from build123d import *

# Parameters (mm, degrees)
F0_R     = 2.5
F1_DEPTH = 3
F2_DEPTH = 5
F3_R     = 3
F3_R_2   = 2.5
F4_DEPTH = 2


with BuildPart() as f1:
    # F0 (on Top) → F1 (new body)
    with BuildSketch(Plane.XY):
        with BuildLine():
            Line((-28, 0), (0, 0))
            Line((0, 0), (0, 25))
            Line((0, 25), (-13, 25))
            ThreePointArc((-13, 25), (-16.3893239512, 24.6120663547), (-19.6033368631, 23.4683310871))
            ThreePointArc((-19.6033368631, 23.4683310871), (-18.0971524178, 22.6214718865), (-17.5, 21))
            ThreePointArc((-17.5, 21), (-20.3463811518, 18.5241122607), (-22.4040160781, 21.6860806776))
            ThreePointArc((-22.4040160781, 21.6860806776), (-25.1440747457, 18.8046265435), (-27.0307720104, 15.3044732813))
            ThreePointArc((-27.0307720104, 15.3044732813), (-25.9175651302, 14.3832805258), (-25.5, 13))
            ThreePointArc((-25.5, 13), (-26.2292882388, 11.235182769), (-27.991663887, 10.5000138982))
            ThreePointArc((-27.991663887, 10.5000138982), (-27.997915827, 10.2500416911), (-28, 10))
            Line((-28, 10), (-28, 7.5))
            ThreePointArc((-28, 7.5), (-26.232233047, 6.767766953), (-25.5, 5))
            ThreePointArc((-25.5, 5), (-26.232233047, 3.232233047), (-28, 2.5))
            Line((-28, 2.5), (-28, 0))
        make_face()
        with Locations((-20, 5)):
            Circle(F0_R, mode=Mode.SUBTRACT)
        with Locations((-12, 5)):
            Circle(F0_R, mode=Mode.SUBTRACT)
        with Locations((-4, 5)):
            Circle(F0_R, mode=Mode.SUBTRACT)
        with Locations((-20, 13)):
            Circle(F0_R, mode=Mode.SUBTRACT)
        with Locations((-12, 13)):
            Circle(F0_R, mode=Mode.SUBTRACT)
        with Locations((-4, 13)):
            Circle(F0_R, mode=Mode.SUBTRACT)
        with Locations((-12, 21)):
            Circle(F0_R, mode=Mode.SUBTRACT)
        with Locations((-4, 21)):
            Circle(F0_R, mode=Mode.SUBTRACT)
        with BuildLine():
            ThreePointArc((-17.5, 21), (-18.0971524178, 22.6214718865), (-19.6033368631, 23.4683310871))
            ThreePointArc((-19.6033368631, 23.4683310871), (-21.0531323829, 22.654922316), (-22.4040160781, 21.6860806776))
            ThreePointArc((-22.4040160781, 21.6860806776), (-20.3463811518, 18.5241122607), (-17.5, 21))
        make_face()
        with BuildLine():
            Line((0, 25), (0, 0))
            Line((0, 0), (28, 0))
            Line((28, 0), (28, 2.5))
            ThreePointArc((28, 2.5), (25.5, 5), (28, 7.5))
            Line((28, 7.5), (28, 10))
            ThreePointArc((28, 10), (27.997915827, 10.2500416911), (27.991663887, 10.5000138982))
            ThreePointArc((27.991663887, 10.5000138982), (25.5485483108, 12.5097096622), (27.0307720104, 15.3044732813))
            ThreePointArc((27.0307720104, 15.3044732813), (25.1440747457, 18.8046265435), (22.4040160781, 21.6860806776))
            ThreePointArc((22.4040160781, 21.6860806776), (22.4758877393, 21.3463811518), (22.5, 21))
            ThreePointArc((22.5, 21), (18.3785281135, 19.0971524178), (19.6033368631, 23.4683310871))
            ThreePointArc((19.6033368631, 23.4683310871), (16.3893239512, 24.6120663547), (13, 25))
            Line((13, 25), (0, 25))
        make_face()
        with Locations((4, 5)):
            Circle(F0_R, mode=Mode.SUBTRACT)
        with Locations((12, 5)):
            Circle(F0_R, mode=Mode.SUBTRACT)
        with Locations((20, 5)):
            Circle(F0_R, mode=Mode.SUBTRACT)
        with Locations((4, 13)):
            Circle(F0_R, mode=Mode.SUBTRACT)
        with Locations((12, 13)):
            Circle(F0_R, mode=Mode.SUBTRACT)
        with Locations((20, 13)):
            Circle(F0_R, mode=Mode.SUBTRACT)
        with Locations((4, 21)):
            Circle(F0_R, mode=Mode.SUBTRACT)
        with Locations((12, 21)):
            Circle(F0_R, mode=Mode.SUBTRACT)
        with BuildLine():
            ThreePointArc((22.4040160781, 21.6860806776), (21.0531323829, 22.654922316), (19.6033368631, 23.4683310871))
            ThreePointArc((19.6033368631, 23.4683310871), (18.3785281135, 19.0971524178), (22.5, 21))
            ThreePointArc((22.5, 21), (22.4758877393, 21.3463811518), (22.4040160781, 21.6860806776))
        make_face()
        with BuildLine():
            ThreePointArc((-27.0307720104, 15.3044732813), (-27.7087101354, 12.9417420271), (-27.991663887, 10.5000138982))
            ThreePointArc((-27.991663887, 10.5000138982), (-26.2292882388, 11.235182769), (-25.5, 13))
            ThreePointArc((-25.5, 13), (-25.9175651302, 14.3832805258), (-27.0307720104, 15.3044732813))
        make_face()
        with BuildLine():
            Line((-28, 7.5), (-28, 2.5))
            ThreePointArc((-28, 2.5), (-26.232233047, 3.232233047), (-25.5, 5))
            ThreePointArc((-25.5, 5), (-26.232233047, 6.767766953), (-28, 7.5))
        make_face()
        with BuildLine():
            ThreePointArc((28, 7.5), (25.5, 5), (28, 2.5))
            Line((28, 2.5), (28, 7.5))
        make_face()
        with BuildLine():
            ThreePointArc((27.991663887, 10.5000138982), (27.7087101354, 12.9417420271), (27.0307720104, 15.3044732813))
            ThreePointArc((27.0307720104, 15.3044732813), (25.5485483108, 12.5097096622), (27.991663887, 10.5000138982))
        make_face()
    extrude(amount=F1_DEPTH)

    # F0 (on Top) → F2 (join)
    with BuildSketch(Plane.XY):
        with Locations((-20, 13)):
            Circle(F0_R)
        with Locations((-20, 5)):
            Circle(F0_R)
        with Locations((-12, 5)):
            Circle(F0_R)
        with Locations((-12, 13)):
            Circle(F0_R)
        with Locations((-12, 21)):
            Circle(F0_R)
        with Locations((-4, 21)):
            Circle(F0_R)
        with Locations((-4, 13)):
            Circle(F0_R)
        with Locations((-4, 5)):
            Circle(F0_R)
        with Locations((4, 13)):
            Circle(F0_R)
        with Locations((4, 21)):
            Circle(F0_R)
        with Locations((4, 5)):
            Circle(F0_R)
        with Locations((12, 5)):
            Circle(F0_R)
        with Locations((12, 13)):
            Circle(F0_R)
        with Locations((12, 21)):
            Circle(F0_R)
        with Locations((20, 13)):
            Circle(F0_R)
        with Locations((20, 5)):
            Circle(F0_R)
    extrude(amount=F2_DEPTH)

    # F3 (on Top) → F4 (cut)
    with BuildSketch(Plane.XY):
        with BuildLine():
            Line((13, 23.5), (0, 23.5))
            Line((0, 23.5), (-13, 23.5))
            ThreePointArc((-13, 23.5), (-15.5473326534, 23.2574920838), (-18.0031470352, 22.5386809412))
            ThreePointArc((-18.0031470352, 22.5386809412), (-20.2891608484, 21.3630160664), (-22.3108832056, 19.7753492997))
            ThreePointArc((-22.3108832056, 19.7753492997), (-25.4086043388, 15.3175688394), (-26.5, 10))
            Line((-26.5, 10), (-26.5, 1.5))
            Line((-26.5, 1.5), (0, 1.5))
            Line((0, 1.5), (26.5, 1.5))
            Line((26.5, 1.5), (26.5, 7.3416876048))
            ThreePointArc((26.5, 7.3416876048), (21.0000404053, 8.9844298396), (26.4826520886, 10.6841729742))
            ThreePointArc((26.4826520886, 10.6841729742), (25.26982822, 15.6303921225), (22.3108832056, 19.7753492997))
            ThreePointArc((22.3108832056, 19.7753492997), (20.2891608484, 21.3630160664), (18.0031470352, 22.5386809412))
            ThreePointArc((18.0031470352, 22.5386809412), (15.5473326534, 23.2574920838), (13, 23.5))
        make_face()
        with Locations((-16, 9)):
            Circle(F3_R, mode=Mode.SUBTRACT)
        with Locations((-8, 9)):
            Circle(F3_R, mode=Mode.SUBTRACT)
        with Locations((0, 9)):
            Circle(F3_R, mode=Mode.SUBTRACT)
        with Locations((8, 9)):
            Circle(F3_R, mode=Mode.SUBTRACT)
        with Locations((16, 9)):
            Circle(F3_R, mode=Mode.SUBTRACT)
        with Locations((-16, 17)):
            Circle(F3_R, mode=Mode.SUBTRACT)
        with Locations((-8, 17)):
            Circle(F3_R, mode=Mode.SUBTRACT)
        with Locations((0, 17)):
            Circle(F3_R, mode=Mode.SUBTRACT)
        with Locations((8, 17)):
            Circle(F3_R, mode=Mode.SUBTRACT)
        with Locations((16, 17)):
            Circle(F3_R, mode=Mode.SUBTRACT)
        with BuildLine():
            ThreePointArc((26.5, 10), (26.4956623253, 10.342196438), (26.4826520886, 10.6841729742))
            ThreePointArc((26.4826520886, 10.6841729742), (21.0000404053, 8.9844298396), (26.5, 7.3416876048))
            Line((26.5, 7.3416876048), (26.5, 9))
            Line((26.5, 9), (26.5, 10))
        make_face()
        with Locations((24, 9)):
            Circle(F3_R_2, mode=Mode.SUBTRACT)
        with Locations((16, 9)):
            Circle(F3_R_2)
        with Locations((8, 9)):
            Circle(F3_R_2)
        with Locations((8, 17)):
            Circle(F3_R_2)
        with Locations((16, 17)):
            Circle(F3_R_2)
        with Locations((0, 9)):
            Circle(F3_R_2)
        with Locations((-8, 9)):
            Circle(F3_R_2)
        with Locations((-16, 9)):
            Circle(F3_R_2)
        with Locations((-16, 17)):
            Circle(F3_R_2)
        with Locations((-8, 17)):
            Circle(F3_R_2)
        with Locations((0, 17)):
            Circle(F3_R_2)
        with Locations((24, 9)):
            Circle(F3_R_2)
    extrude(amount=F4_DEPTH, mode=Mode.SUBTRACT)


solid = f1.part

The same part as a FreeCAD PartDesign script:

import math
import FreeCAD as App
import Part
import Sketcher
from FreeCAD import Vector

doc = App.newDocument("Part")
body = doc.addObject("PartDesign::Body", "Body")

# Sketch on XY plane
sketch1 = body.newObject("Sketcher::SketchObject", "Sketch")
sketch1.AttachmentSupport = (doc.getObject("XY_Plane"), [""])
sketch1.MapMode = "FlatFace"
sketch1.addGeometry([
    Part.LineSegment(Vector(-28, 0, 0), Vector(28, 0, 0)),  # 0
    Part.LineSegment(Vector(28, 0, 0), Vector(28, 10, 0)),  # 1
    Part.ArcOfCircle(Part.Circle(Vector(13, 10, 0), Vector(0, 0, 1), 15), math.radians(0), math.radians(1.91)),  # 2
    Part.ArcOfCircle(Part.Circle(Vector(13, 10, 0), Vector(0, 0, 1), 15), math.radians(1.91), math.radians(20.71)),  # 3
    Part.ArcOfCircle(Part.Circle(Vector(13, 10, 0), Vector(0, 0, 1), 15), math.radians(21), math.radians(64)),  # 4
    Part.ArcOfCircle(Part.Circle(Vector(13, 10, 0), Vector(0, 0, 1), 15), math.radians(64), math.radians(90)),  # 5
    Part.LineSegment(Vector(13, 25, 0), Vector(-13, 25, 0)),  # 6
    Part.ArcOfCircle(Part.Circle(Vector(-13, 10, 0), Vector(0, 0, 1), 15), math.radians(90), math.radians(116)),  # 7
    Part.ArcOfCircle(Part.Circle(Vector(-13, 10, 0), Vector(0, 0, 1), 15), math.radians(116), math.radians(159)),  # 8
    Part.ArcOfCircle(Part.Circle(Vector(-13, 10, 0), Vector(0, 0, 1), 15), math.radians(159.29), math.radians(178.09)),  # 9
    Part.ArcOfCircle(Part.Circle(Vector(-13, 10, 0), Vector(0, 0, 1), 15), math.radians(178.09), math.radians(180)),  # 10
    Part.LineSegment(Vector(-28, 10, 0), Vector(-28, 0, 0)),  # 11
    Part.Circle(Vector(-20, 5, 0), Vector(0, 0, 1), 2.5),  # 12
    Part.Circle(Vector(-12, 5, 0), Vector(0, 0, 1), 2.5),  # 13
    Part.Circle(Vector(-4, 5, 0), Vector(0, 0, 1), 2.5),  # 14
    Part.Circle(Vector(4, 5, 0), Vector(0, 0, 1), 2.5),  # 15
    Part.Circle(Vector(12, 5, 0), Vector(0, 0, 1), 2.5),  # 16
    Part.Circle(Vector(20, 5, 0), Vector(0, 0, 1), 2.5),  # 17
    Part.Circle(Vector(-20, 13, 0), Vector(0, 0, 1), 2.5),  # 18
    Part.Circle(Vector(-12, 13, 0), Vector(0, 0, 1), 2.5),  # 19
    Part.Circle(Vector(-4, 13, 0), Vector(0, 0, 1), 2.5),  # 20
    Part.Circle(Vector(-12, 21, 0), Vector(0, 0, 1), 2.5),  # 21
    Part.Circle(Vector(-4, 21, 0), Vector(0, 0, 1), 2.5),  # 22
    Part.Circle(Vector(4, 13, 0), Vector(0, 0, 1), 2.5),  # 23
    Part.Circle(Vector(12, 13, 0), Vector(0, 0, 1), 2.5),  # 24
    Part.Circle(Vector(20, 13, 0), Vector(0, 0, 1), 2.5),  # 25
    Part.Circle(Vector(4, 21, 0), Vector(0, 0, 1), 2.5),  # 26
    Part.Circle(Vector(12, 21, 0), Vector(0, 0, 1), 2.5),  # 27
], False)
sketch1.addConstraint([
    Sketcher.Constraint("Coincident", 0, 2, 1, 1),
    Sketcher.Constraint("Tangent", 1, 2, 2, 1),
    Sketcher.Constraint("Tangent", 2, 2, 3, 1),
    Sketcher.Constraint("Tangent", 3, 2, 4, 1),
    Sketcher.Constraint("Tangent", 4, 2, 5, 1),
    Sketcher.Constraint("Tangent", 5, 2, 6, 1),
    Sketcher.Constraint("Tangent", 6, 2, 7, 1),
    Sketcher.Constraint("Tangent", 7, 2, 8, 1),
    Sketcher.Constraint("Tangent", 8, 2, 9, 1),
    Sketcher.Constraint("Tangent", 9, 2, 10, 1),
    Sketcher.Constraint("Tangent", 10, 2, 11, 1),
    Sketcher.Constraint("Coincident", 11, 2, 0, 1),
    Sketcher.Constraint("Horizontal", 0),
    Sketcher.Constraint("Vertical", 1),
    Sketcher.Constraint("Horizontal", 6),
    Sketcher.Constraint("Vertical", 11),
    Sketcher.Constraint("Coincident", 4, 3, 2, 3),
    Sketcher.Constraint("Coincident", 9, 3, 7, 3),
    Sketcher.Constraint("Equal", 4, 5),
    Sketcher.Constraint("Equal", 5, 7),
    Sketcher.Constraint("Equal", 9, 10),
    Sketcher.Constraint("Equal", 12, 13),
    Sketcher.Constraint("Equal", 13, 14),
    Sketcher.Constraint("Equal", 14, 15),
    Sketcher.Constraint("Equal", 15, 16),
    Sketcher.Constraint("Equal", 16, 17),
    Sketcher.Constraint("Equal", 17, 18),
    Sketcher.Constraint("Equal", 18, 19),
    Sketcher.Constraint("Equal", 19, 20),
    Sketcher.Constraint("Equal", 20, 21),
    Sketcher.Constraint("Equal", 21, 22),
    Sketcher.Constraint("Equal", 22, 23),
    Sketcher.Constraint("Equal", 23, 24),
    Sketcher.Constraint("Equal", 24, 25),
    Sketcher.Constraint("Equal", 25, 26),
    Sketcher.Constraint("Equal", 26, 27),
    Sketcher.Constraint("Symmetric", 0, 2, 11, 2, -1, 1),
    Sketcher.Constraint("Symmetric", 14, 3, 15, 3, -2),
    Sketcher.Constraint("Symmetric", 13, 3, 16, 3, -2),
    Sketcher.Constraint("Symmetric", 12, 3, 17, 3, -2),
    Sketcher.Constraint("Symmetric", 20, 3, 23, 3, -2),
    Sketcher.Constraint("Symmetric", 19, 3, 24, 3, -2),
    Sketcher.Constraint("Symmetric", 18, 3, 25, 3, -2),
    Sketcher.Constraint("Symmetric", 22, 3, 26, 3, -2),
    Sketcher.Constraint("Symmetric", 21, 3, 27, 3, -2),
    Sketcher.Constraint("Horizontal", 12, 3, 13, 3),
    Sketcher.Constraint("Horizontal", 13, 3, 14, 3),
    Sketcher.Constraint("Horizontal", 18, 3, 19, 3),
    Sketcher.Constraint("Horizontal", 19, 3, 20, 3),
    Sketcher.Constraint("Horizontal", 21, 3, 22, 3),
    Sketcher.Constraint("Horizontal", 4, 2, 7, 2),
    Sketcher.Constraint("Horizontal", 3, 2, 8, 2),
    Sketcher.Constraint("Horizontal", 2, 2, 9, 2),
    Sketcher.Constraint("Vertical", 12, 3, 18, 3),
    Sketcher.Constraint("Vertical", 13, 3, 19, 3),
    Sketcher.Constraint("Vertical", 14, 3, 20, 3),
    Sketcher.Constraint("Vertical", 19, 3, 21, 3),
    Sketcher.Constraint("Vertical", 20, 3, 22, 3),
    Sketcher.Constraint("Diameter", 12, 5.0),
    Sketcher.Constraint("Radius", 2, 15.0),
    Sketcher.Constraint("DistanceX", 0, 1, 0, 2, 56.0),
    Sketcher.Constraint("DistanceY", 1, 1, 1, 2, 10.0),
    Sketcher.Constraint("DistanceX", 12, 3, -1, 1, 20.0),
    Sketcher.Constraint("DistanceY", -1, 1, 12, 3, 5.0),
    Sketcher.Constraint("DistanceX", 13, 3, -1, 1, 12.0),
    Sketcher.Constraint("DistanceX", 14, 3, -1, 1, 4.0),
    Sketcher.Constraint("DistanceY", -1, 1, 18, 3, 13.0),
    Sketcher.Constraint("DistanceY", -1, 1, 21, 3, 21.0),
    Sketcher.Constraint("DistanceY", -1, 1, 4, 2, 23.468331),
    Sketcher.Constraint("DistanceX", 3, 2, 2, 2, 0.960892),
    Sketcher.Constraint("DistanceY", 2, 2, 3, 2, 4.804459),
])
pad1 = body.newObject("PartDesign::Pad", "Pad")
pad1.Profile = sketch1
pad1.Length = 3

# Sketch on XY plane
sketch2 = body.newObject("Sketcher::SketchObject", "Sketch001")
sketch2.AttachmentSupport = (doc.getObject("XY_Plane"), [""])
sketch2.MapMode = "FlatFace"
sketch2.addGeometry([
    Part.Circle(Vector(-20, 13, 0), Vector(0, 0, 1), 2.5),  # 0
    Part.Circle(Vector(-20, 5, 0), Vector(0, 0, 1), 2.5),  # 1
    Part.Circle(Vector(-12, 5, 0), Vector(0, 0, 1), 2.5),  # 2
    Part.Circle(Vector(-12, 13, 0), Vector(0, 0, 1), 2.5),  # 3
    Part.Circle(Vector(-12, 21, 0), Vector(0, 0, 1), 2.5),  # 4
    Part.Circle(Vector(-4, 21, 0), Vector(0, 0, 1), 2.5),  # 5
    Part.Circle(Vector(-4, 13, 0), Vector(0, 0, 1), 2.5),  # 6
    Part.Circle(Vector(-4, 5, 0), Vector(0, 0, 1), 2.5),  # 7
    Part.Circle(Vector(4, 13, 0), Vector(0, 0, 1), 2.5),  # 8
    Part.Circle(Vector(4, 21, 0), Vector(0, 0, 1), 2.5),  # 9
    Part.Circle(Vector(4, 5, 0), Vector(0, 0, 1), 2.5),  # 10
    Part.Circle(Vector(12, 5, 0), Vector(0, 0, 1), 2.5),  # 11
    Part.Circle(Vector(12, 13, 0), Vector(0, 0, 1), 2.5),  # 12
    Part.Circle(Vector(12, 21, 0), Vector(0, 0, 1), 2.5),  # 13
    Part.Circle(Vector(20, 13, 0), Vector(0, 0, 1), 2.5),  # 14
    Part.Circle(Vector(20, 5, 0), Vector(0, 0, 1), 2.5),  # 15
], False)
sketch2.addConstraint([
    Sketcher.Constraint("Equal", 0, 1),
    Sketcher.Constraint("Equal", 1, 2),
    Sketcher.Constraint("Equal", 2, 3),
    Sketcher.Constraint("Equal", 3, 4),
    Sketcher.Constraint("Equal", 4, 5),
    Sketcher.Constraint("Equal", 5, 6),
    Sketcher.Constraint("Equal", 6, 7),
    Sketcher.Constraint("Equal", 7, 8),
    Sketcher.Constraint("Equal", 8, 9),
    Sketcher.Constraint("Equal", 9, 10),
    Sketcher.Constraint("Equal", 10, 11),
    Sketcher.Constraint("Equal", 11, 12),
    Sketcher.Constraint("Equal", 12, 13),
    Sketcher.Constraint("Equal", 13, 14),
    Sketcher.Constraint("Equal", 14, 15),
    Sketcher.Constraint("Symmetric", 6, 3, 8, 3, -2),
    Sketcher.Constraint("Symmetric", 5, 3, 9, 3, -2),
    Sketcher.Constraint("Symmetric", 7, 3, 10, 3, -2),
    Sketcher.Constraint("Symmetric", 2, 3, 11, 3, -2),
    Sketcher.Constraint("Symmetric", 3, 3, 12, 3, -2),
    Sketcher.Constraint("Symmetric", 4, 3, 13, 3, -2),
    Sketcher.Constraint("Symmetric", 0, 3, 14, 3, -2),
    Sketcher.Constraint("Symmetric", 1, 3, 15, 3, -2),
    Sketcher.Constraint("Horizontal", 1, 3, 2, 3),
    Sketcher.Constraint("Horizontal", 0, 3, 3, 3),
    Sketcher.Constraint("Horizontal", 4, 3, 5, 3),
    Sketcher.Constraint("Horizontal", 3, 3, 6, 3),
    Sketcher.Constraint("Horizontal", 2, 3, 7, 3),
    Sketcher.Constraint("Vertical", 0, 3, 1, 3),
    Sketcher.Constraint("Vertical", 2, 3, 3, 3),
    Sketcher.Constraint("Vertical", 3, 3, 4, 3),
    Sketcher.Constraint("Vertical", 5, 3, 6, 3),
    Sketcher.Constraint("Vertical", 6, 3, 7, 3),
    Sketcher.Constraint("Diameter", 0, 5.0),
    Sketcher.Constraint("DistanceX", 0, 3, -1, 1, 20.0),
    Sketcher.Constraint("DistanceY", -1, 1, 0, 3, 13.0),
    Sketcher.Constraint("DistanceY", -1, 1, 1, 3, 5.0),
    Sketcher.Constraint("DistanceX", 2, 3, -1, 1, 12.0),
    Sketcher.Constraint("DistanceY", -1, 1, 4, 3, 21.0),
    Sketcher.Constraint("DistanceX", 5, 3, -1, 1, 4.0),
])
pad2 = body.newObject("PartDesign::Pad", "Pad001")
pad2.Profile = sketch2
pad2.Length = 5

# Sketch on XY plane
sketch3 = body.newObject("Sketcher::SketchObject", "Sketch002")
sketch3.AttachmentSupport = (doc.getObject("XY_Plane"), [""])
sketch3.MapMode = "FlatFace"
sketch3.addGeometry([
    Part.ArcOfCircle(Part.Circle(Vector(13, 10, 0), Vector(0, 0, 1), 13.5), math.radians(46), math.radians(68)),  # 0
    Part.ArcOfCircle(Part.Circle(Vector(13, 10, 0), Vector(0, 0, 1), 13.5), math.radians(68), math.radians(90)),  # 1
    Part.LineSegment(Vector(13, 23.5, 0), Vector(-13, 23.5, 0)),  # 2
    Part.ArcOfCircle(Part.Circle(Vector(-13, 10, 0), Vector(0, 0, 1), 13.5), math.radians(90), math.radians(112)),  # 3
    Part.ArcOfCircle(Part.Circle(Vector(-13, 10, 0), Vector(0, 0, 1), 13.5), math.radians(112), math.radians(134)),  # 4
    Part.ArcOfCircle(Part.Circle(Vector(-13, 10, 0), Vector(0, 0, 1), 13.5), math.radians(134), math.radians(180)),  # 5
    Part.LineSegment(Vector(-26.5, 10, 0), Vector(-26.5, 1.5, 0)),  # 6
    Part.LineSegment(Vector(-26.5, 1.5, 0), Vector(26.5, 1.5, 0)),  # 7
    Part.LineSegment(Vector(26.5, 1.5, 0), Vector(26.5, 10, 0)),  # 8
    Part.ArcOfCircle(Part.Circle(Vector(13, 10, 0), Vector(0, 0, 1), 13.5), math.radians(0), math.radians(2.9)),  # 9
    Part.ArcOfCircle(Part.Circle(Vector(13, 10, 0), Vector(0, 0, 1), 13.5), math.radians(3), math.radians(46)),  # 10
    Part.Circle(Vector(-16, 9, 0), Vector(0, 0, 1), 3),  # 11
    Part.Circle(Vector(-8, 9, 0), Vector(0, 0, 1), 3),  # 12
    Part.Circle(Vector(0, 9, 0), Vector(0, 0, 1), 3),  # 13
    Part.Circle(Vector(8, 9, 0), Vector(0, 0, 1), 3),  # 14
    Part.Circle(Vector(16, 9, 0), Vector(0, 0, 1), 3),  # 15
    Part.Circle(Vector(-16, 17, 0), Vector(0, 0, 1), 3),  # 16
    Part.Circle(Vector(-8, 17, 0), Vector(0, 0, 1), 3),  # 17
    Part.Circle(Vector(0, 17, 0), Vector(0, 0, 1), 3),  # 18
    Part.Circle(Vector(8, 17, 0), Vector(0, 0, 1), 3),  # 19
    Part.Circle(Vector(16, 17, 0), Vector(0, 0, 1), 3),  # 20
    Part.Circle(Vector(16, 9, 0), Vector(0, 0, 1), 2.5),  # 21
    Part.Circle(Vector(8, 9, 0), Vector(0, 0, 1), 2.5),  # 22
    Part.Circle(Vector(8, 17, 0), Vector(0, 0, 1), 2.5),  # 23
    Part.Circle(Vector(16, 17, 0), Vector(0, 0, 1), 2.5),  # 24
    Part.Circle(Vector(0, 9, 0), Vector(0, 0, 1), 2.5),  # 25
    Part.Circle(Vector(-8, 9, 0), Vector(0, 0, 1), 2.5),  # 26
    Part.Circle(Vector(-16, 9, 0), Vector(0, 0, 1), 2.5),  # 27
    Part.Circle(Vector(-16, 17, 0), Vector(0, 0, 1), 2.5),  # 28
    Part.Circle(Vector(-8, 17, 0), Vector(0, 0, 1), 2.5),  # 29
    Part.Circle(Vector(0, 17, 0), Vector(0, 0, 1), 2.5),  # 30
], False)
sketch3.addConstraint([
    Sketcher.Constraint("Tangent", 0, 2, 1, 1),
    Sketcher.Constraint("Tangent", 1, 2, 2, 1),
    Sketcher.Constraint("Tangent", 2, 2, 3, 1),
    Sketcher.Constraint("Tangent", 3, 2, 4, 1),
    Sketcher.Constraint("Tangent", 4, 2, 5, 1),
    Sketcher.Constraint("Tangent", 5, 2, 6, 1),
    Sketcher.Constraint("Coincident", 6, 2, 7, 1),
    Sketcher.Constraint("Coincident", 7, 2, 8, 1),
    Sketcher.Constraint("Tangent", 8, 2, 9, 1),
    Sketcher.Constraint("Tangent", 9, 2, 10, 1),
    Sketcher.Constraint("Tangent", 10, 2, 0, 1),
    Sketcher.Constraint("Horizontal", 2),
    Sketcher.Constraint("Vertical", 6),
    Sketcher.Constraint("Horizontal", 7),
    Sketcher.Constraint("Vertical", 8),
    Sketcher.Constraint("Coincident", 5, 3, 3, 3),
    Sketcher.Constraint("Coincident", 9, 3, 0, 3),
    Sketcher.Constraint("Coincident", 21, 3, 15, 3),
    Sketcher.Constraint("Coincident", 22, 3, 14, 3),
    Sketcher.Constraint("Coincident", 23, 3, 19, 3),
    Sketcher.Constraint("Coincident", 24, 3, 20, 3),
    Sketcher.Constraint("Coincident", 25, 3, 13, 3),
    Sketcher.Constraint("Coincident", 26, 3, 12, 3),
    Sketcher.Constraint("Coincident", 27, 3, 11, 3),
    Sketcher.Constraint("Coincident", 28, 3, 16, 3),
    Sketcher.Constraint("Coincident", 29, 3, 17, 3),
    Sketcher.Constraint("Coincident", 30, 3, 18, 3),
    Sketcher.Constraint("Equal", 0, 1),
    Sketcher.Constraint("Equal", 1, 3),
    Sketcher.Constraint("Equal", 11, 12),
    Sketcher.Constraint("Equal", 12, 13),
    Sketcher.Constraint("Equal", 13, 14),
    Sketcher.Constraint("Equal", 14, 15),
    Sketcher.Constraint("Equal", 15, 16),
    Sketcher.Constraint("Equal", 16, 17),
    Sketcher.Constraint("Equal", 17, 18),
    Sketcher.Constraint("Equal", 18, 19),
    Sketcher.Constraint("Equal", 19, 20),
    Sketcher.Constraint("Equal", 21, 22),
    Sketcher.Constraint("Equal", 22, 23),
    Sketcher.Constraint("Equal", 23, 24),
    Sketcher.Constraint("Equal", 24, 25),
    Sketcher.Constraint("Equal", 25, 26),
    Sketcher.Constraint("Equal", 26, 27),
    Sketcher.Constraint("Equal", 27, 28),
    Sketcher.Constraint("Equal", 28, 29),
    Sketcher.Constraint("Equal", 29, 30),
    Sketcher.Constraint("Symmetric", 12, 3, 14, 3, -2),
    Sketcher.Constraint("Symmetric", 11, 3, 15, 3, -2),
    Sketcher.Constraint("Symmetric", 17, 3, 19, 3, -2),
    Sketcher.Constraint("Symmetric", 16, 3, 20, 3, -2),
    Sketcher.Constraint("Symmetric", 0, 2, 3, 2, -2),
    Sketcher.Constraint("PointOnObject", 13, 3, -2),
    Sketcher.Constraint("PointOnObject", 18, 3, -2),
    Sketcher.Constraint("Horizontal", 11, 3, 12, 3),
    Sketcher.Constraint("Horizontal", 12, 3, 13, 3),
    Sketcher.Constraint("Horizontal", 16, 3, 17, 3),
    Sketcher.Constraint("Horizontal", 17, 3, 18, 3),
    Sketcher.Constraint("Horizontal", 4, 2, 10, 2),
    Sketcher.Constraint("Vertical", 11, 3, 16, 3),
    Sketcher.Constraint("Vertical", 12, 3, 17, 3),
    Sketcher.Constraint("Diameter", 11, 6.0),
    Sketcher.Constraint("Diameter", 21, 5.0),
    Sketcher.Constraint("Radius", 0, 13.5),
    Sketcher.Constraint("DistanceX", 2, 2, 2, 1, 26.0),
    Sketcher.Constraint("DistanceY", 6, 2, 6, 1, 8.5),
    Sketcher.Constraint("DistanceY", -1, 1, 0, 3, 10.0),
    Sketcher.Constraint("DistanceX", 11, 3, -1, 1, 16.0),
    Sketcher.Constraint("DistanceY", -1, 1, 11, 3, 9.0),
    Sketcher.Constraint("DistanceX", 12, 3, -1, 1, 8.0),
    Sketcher.Constraint("DistanceY", -1, 1, 16, 3, 17.0),
    Sketcher.Constraint("DistanceY", -1, 1, 0, 2, 22.538681),
    Sketcher.Constraint("DistanceY", -1, 1, 4, 2, 19.775349),
    Sketcher.Constraint("DistanceX", 10, 2, 9, 2, 4.171769),
])
pocket1 = body.newObject("PartDesign::Pocket", "Pocket")
pocket1.Profile = sketch3
pocket1.Length = 2
pocket1.Reversed = True

doc.recompute()
